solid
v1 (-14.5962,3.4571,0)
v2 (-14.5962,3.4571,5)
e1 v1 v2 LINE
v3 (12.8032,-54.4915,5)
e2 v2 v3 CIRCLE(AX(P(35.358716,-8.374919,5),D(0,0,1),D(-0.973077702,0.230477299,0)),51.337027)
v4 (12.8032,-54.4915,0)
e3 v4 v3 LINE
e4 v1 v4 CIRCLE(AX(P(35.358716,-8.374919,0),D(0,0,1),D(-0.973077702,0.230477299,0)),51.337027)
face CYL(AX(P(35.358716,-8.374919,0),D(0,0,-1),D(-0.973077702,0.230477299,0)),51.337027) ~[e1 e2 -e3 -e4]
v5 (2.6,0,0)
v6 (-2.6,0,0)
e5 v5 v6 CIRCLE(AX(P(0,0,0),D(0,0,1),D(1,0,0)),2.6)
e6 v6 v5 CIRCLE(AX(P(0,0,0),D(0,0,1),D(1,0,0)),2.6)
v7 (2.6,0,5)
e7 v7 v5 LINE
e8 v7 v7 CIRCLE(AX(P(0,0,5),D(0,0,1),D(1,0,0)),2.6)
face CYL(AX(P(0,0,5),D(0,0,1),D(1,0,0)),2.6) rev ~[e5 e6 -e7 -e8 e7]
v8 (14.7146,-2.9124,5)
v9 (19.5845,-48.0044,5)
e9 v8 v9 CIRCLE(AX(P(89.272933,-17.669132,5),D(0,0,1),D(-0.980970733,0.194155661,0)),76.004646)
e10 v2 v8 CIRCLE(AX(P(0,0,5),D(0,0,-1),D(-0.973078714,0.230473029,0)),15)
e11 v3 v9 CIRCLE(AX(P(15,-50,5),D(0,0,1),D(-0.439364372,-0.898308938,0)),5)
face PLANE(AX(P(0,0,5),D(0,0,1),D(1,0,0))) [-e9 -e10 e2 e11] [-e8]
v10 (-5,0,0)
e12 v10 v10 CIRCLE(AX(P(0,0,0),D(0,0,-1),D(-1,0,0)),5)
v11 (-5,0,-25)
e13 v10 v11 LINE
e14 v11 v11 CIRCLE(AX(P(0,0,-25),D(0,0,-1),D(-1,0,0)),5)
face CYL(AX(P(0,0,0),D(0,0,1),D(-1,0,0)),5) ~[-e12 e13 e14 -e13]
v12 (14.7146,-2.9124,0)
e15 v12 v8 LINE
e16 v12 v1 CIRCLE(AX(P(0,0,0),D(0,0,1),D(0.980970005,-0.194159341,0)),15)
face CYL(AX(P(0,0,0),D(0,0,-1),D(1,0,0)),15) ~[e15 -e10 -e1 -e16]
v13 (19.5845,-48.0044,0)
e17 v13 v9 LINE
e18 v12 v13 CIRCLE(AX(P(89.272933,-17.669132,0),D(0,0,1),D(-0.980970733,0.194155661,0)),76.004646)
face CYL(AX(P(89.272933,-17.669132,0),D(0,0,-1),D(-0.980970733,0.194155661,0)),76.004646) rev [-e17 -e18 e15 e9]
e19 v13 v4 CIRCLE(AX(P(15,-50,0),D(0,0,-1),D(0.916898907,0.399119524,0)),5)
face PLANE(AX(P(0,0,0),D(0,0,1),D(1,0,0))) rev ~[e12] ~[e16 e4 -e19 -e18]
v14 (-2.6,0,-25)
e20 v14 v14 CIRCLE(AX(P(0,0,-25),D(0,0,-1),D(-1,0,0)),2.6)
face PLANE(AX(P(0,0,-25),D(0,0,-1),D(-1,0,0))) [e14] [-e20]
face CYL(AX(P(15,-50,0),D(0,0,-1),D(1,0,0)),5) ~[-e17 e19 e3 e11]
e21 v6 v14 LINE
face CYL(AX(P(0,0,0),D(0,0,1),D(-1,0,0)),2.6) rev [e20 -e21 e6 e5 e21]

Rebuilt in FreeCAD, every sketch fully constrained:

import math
import FreeCAD as App
import Part
import Sketcher
Q = App.Units.Quantity

doc = App.newDocument("Part")
body = doc.addObject("PartDesign::Body", "Body")

sketch1 = doc.addObject("Sketcher::SketchObject", "Sketch")
body.addObject(sketch1)
sketch1.AttachmentSupport = (doc.XY_Plane, [""])
sketch1.MapMode = "FlatFace"
sketch1.addGeometry([
    Part.ArcOfCircle(Part.Circle(App.Vector(0, 0, 0), App.Vector(0, 0, 1), 15), math.radians(-11.195619), math.radians(166.675077)),
    Part.ArcOfCircle(Part.Circle(App.Vector(35.3589, -8.3749, 0), App.Vector(0, 0, 1), 51.337201), math.radians(166.674894), math.radians(243.936672)),
    Part.ArcOfCircle(Part.Circle(App.Vector(15, -50, 0), App.Vector(0, 0, 1), 5), math.radians(-116.063333), math.radians(23.523147)),
    Part.ArcOfCircle(Part.Circle(App.Vector(89.2722, -17.6691, 0), App.Vector(0, 0, 1), 76.00392), math.radians(168.804513), math.radians(203.523661)),
], False)
sketch1.addConstraint([
    Sketcher.Constraint("Tangent", 0, 2, 1, 1),
    Sketcher.Constraint("Tangent", 1, 2, 2, 1),
    Sketcher.Constraint("Tangent", 2, 2, 3, 2),
    Sketcher.Constraint("Tangent", 3, 1, 0, 1),
    Sketcher.Constraint("Coincident", 0, 3, -1, 1),
    Sketcher.Constraint("Radius", 0, Q("15 mm")),
    Sketcher.Constraint("Radius", 2, Q("5 mm")),
    Sketcher.Constraint("DistanceX", -1, 1, 2, 3, Q("15 mm")),
    Sketcher.Constraint("DistanceY", 2, 3, -1, 1, Q("50 mm")),
    Sketcher.Constraint("Radius", 3, Q("76.004 mm")),
    Sketcher.Constraint("Radius", 1, Q("51.3372 mm")),
])
pad1 = doc.addObject("PartDesign::Pad", "Pad")
body.addObject(pad1)
pad1.Profile = sketch1
pad1.Length = 5

sketch2 = doc.addObject("Sketcher::SketchObject", "Sketch001")
body.addObject(sketch2)
sketch2.AttachmentSupport = (doc.XY_Plane, [""])
sketch2.MapMode = "FlatFace"
sketch2.AttachmentOffset = App.Placement(App.Vector(0, 0, 5), App.Rotation())
sketch2.addGeometry(Part.Circle(App.Vector(0, 0, 0), App.Vector(0, 0, 1), 2.6), False)
sketch2.addConstraint([
    Sketcher.Constraint("Coincident", 0, 3, -1, 1),
    Sketcher.Constraint("Diameter", 0, Q("5.2 mm")),
])
pocket1 = doc.addObject("PartDesign::Pocket", "Pocket")
body.addObject(pocket1)
pocket1.Profile = sketch2
pocket1.Length = 40

sketch3 = doc.addObject("Sketcher::SketchObject", "Sketch002")
body.addObject(sketch3)
sketch3.AttachmentSupport = (doc.XY_Plane, [""])
sketch3.MapMode = "FlatFace"
sketch3.addGeometry([
    Part.Circle(App.Vector(0, 0, 0), App.Vector(0, 0, 1), 5),
    Part.Circle(App.Vector(0, 0, 0), App.Vector(0, 0, 1), 2.6),
], False)
sketch3.addConstraint([
    Sketcher.Constraint("Coincident", 0, 3, -1, 1),
    Sketcher.Constraint("Coincident", 1, 3, -1, 1),
    Sketcher.Constraint("Diameter", 0, Q("10 mm")),
    Sketcher.Constraint("Diameter", 1, Q("5.2 mm")),
])
pad2 = doc.addObject("PartDesign::Pad", "Pad001")
body.addObject(pad2)
pad2.Profile = sketch3
pad2.Length = 25
pad2.Reversed = True

doc.recompute()
